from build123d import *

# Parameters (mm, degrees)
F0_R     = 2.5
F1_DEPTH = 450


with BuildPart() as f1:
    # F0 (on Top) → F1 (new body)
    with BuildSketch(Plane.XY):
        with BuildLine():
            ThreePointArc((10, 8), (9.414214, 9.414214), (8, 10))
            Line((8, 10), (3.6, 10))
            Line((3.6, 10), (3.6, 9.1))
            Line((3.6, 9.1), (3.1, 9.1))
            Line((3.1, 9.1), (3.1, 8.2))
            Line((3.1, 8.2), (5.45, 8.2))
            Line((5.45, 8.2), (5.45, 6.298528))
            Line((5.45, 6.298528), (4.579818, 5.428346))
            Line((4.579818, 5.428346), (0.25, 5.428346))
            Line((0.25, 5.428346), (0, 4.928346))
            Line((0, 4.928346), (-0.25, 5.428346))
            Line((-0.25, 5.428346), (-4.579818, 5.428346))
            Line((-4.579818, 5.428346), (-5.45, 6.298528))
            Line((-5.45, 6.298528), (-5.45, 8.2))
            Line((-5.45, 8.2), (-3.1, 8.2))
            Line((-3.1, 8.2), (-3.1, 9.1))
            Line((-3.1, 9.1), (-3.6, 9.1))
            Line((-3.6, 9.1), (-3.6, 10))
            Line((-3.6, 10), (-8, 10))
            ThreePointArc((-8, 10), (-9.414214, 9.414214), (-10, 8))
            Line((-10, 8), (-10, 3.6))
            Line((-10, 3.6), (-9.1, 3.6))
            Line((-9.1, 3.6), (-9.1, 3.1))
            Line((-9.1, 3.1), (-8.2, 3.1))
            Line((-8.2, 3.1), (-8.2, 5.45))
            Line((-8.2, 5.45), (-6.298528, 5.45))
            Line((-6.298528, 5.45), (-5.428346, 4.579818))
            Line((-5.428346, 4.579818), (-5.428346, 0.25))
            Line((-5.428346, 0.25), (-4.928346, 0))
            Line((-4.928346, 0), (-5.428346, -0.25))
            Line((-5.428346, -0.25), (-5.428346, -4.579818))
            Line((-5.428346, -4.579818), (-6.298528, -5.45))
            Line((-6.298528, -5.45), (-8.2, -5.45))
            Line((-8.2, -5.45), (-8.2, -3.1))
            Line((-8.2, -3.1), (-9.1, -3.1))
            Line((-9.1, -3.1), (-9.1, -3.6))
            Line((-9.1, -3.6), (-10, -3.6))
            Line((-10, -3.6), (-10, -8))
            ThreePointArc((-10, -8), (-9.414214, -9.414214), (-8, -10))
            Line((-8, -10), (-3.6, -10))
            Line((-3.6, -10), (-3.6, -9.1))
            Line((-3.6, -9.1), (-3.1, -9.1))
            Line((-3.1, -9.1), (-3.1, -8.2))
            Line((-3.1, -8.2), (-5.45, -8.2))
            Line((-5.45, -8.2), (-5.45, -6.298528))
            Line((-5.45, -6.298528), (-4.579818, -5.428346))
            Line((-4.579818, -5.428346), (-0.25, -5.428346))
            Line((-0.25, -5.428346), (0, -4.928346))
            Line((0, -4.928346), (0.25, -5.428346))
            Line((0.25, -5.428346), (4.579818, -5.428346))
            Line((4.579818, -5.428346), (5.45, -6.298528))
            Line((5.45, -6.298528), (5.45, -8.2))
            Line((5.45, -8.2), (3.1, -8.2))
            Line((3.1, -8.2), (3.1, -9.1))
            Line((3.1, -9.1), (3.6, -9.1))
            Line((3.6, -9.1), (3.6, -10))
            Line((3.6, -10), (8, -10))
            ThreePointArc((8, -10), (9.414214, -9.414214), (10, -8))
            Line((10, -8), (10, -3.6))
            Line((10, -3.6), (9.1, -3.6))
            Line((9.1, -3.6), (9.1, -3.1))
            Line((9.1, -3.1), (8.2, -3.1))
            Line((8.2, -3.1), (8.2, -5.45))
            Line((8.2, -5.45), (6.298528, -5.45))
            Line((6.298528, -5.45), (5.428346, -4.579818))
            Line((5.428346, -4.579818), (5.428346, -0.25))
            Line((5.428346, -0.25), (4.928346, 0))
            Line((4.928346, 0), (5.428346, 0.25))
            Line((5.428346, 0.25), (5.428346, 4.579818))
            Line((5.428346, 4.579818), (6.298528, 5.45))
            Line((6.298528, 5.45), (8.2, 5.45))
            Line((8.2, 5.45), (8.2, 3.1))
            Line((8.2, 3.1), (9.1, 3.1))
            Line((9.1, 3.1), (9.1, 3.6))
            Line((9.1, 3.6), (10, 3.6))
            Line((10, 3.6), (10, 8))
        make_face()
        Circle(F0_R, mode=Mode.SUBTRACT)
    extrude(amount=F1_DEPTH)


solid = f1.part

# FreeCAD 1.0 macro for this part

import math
import FreeCAD as App
import Part
import Sketcher
Q = App.Units.Quantity

doc = App.newDocument("Part")
body = doc.addObject("PartDesign::Body", "Body")

sketch1 = body.newObject("Sketcher::SketchObject", "Sketch")
sketch1.AttachmentSupport = (doc.getObject("XY_Plane"), [""])
sketch1.MapMode = "FlatFace"
sketch1.addGeometry([
    Part.ArcOfCircle(Part.Circle(App.Vector(8, 8, 0), App.Vector(0, 0, 1), 2), math.radians(0), math.radians(90)),
    Part.LineSegment(App.Vector(8, 10, 0), App.Vector(3.6, 10, 0)),
    Part.LineSegment(App.Vector(3.6, 10, 0), App.Vector(3.6, 9.1, 0)),
    Part.LineSegment(App.Vector(3.6, 9.1, 0), App.Vector(3.1, 9.1, 0)),
    Part.LineSegment(App.Vector(3.1, 9.1, 0), App.Vector(3.1, 8.2, 0)),
    Part.LineSegment(App.Vector(3.1, 8.2, 0), App.Vector(5.5, 8.2, 0)),
    Part.LineSegment(App.Vector(5.5, 8.2, 0), App.Vector(5.5, 6.3, 0)),
    Part.LineSegment(App.Vector(5.5, 6.3, 0), App.Vector(4.6, 5.4, 0)),
    Part.LineSegment(App.Vector(4.6, 5.4, 0), App.Vector(0.2, 5.4, 0)),
    Part.LineSegment(App.Vector(0.2, 5.4, 0), App.Vector(0, 4.9, 0)),
    Part.LineSegment(App.Vector(0, 4.9, 0), App.Vector(-0.2, 5.4, 0)),
    Part.LineSegment(App.Vector(-0.2, 5.4, 0), App.Vector(-4.6, 5.4, 0)),
    Part.LineSegment(App.Vector(-4.6, 5.4, 0), App.Vector(-5.5, 6.3, 0)),
    Part.LineSegment(App.Vector(-5.5, 6.3, 0), App.Vector(-5.5, 8.2, 0)),
    Part.LineSegment(App.Vector(-5.5, 8.2, 0), App.Vector(-3.1, 8.2, 0)),
    Part.LineSegment(App.Vector(-3.1, 8.2, 0), App.Vector(-3.1, 9.1, 0)),
    Part.LineSegment(App.Vector(-3.1, 9.1, 0), App.Vector(-3.6, 9.1, 0)),
    Part.LineSegment(App.Vector(-3.6, 9.1, 0), App.Vector(-3.6, 10, 0)),
    Part.LineSegment(App.Vector(-3.6, 10, 0), App.Vector(-8, 10, 0)),
    Part.ArcOfCircle(Part.Circle(App.Vector(-8, 8, 0), App.Vector(0, 0, 1), 2), math.radians(90), math.radians(180)),
    Part.LineSegment(App.Vector(-10, 8, 0), App.Vector(-10, 3.6, 0)),
    Part.LineSegment(App.Vector(-10, 3.6, 0), App.Vector(-9.1, 3.6, 0)),
    Part.LineSegment(App.Vector(-9.1, 3.6, 0), App.Vector(-9.1, 3.1, 0)),
    Part.LineSegment(App.Vector(-9.1, 3.1, 0), App.Vector(-8.2, 3.1, 0)),
    Part.LineSegment(App.Vector(-8.2, 3.1, 0), App.Vector(-8.2, 5.5, 0)),
    Part.LineSegment(App.Vector(-8.2, 5.5, 0), App.Vector(-6.3, 5.5, 0)),
    Part.LineSegment(App.Vector(-6.3, 5.5, 0), App.Vector(-5.4, 4.6, 0)),
    Part.LineSegment(App.Vector(-5.4, 4.6, 0), App.Vector(-5.4, 0.2, 0)),
    Part.LineSegment(App.Vector(-5.4, 0.2, 0), App.Vector(-4.9, 0, 0)),
    Part.LineSegment(App.Vector(-4.9, 0, 0), App.Vector(-5.4, -0.2, 0)),
    Part.LineSegment(App.Vector(-5.4, -0.2, 0), App.Vector(-5.4, -4.6, 0)),
    Part.LineSegment(App.Vector(-5.4, -4.6, 0), App.Vector(-6.3, -5.5, 0)),
    Part.LineSegment(App.Vector(-6.3, -5.5, 0), App.Vector(-8.2, -5.5, 0)),
    Part.LineSegment(App.Vector(-8.2, -5.5, 0), App.Vector(-8.2, -3.1, 0)),
    Part.LineSegment(App.Vector(-8.2, -3.1, 0), App.Vector(-9.1, -3.1, 0)),
    Part.LineSegment(App.Vector(-9.1, -3.1, 0), App.Vector(-9.1, -3.6, 0)),
    Part.LineSegment(App.Vector(-9.1, -3.6, 0), App.Vector(-10, -3.6, 0)),
    Part.LineSegment(App.Vector(-10, -3.6, 0), App.Vector(-10, -8, 0)),
    Part.ArcOfCircle(Part.Circle(App.Vector(-8, -8, 0), App.Vector(0, 0, 1), 2), math.radians(180), math.radians(270)),
    Part.LineSegment(App.Vector(-8, -10, 0), App.Vector(-3.6, -10, 0)),
    Part.LineSegment(App.Vector(-3.6, -10, 0), App.Vector(-3.6, -9.1, 0)),
    Part.LineSegment(App.Vector(-3.6, -9.1, 0), App.Vector(-3.1, -9.1, 0)),
    Part.LineSegment(App.Vector(-3.1, -9.1, 0), App.Vector(-3.1, -8.2, 0)),
    Part.LineSegment(App.Vector(-3.1, -8.2, 0), App.Vector(-5.5, -8.2, 0)),
    Part.LineSegment(App.Vector(-5.5, -8.2, 0), App.Vector(-5.5, -6.3, 0)),
    Part.LineSegment(App.Vector(-5.5, -6.3, 0), App.Vector(-4.6, -5.4, 0)),
    Part.LineSegment(App.Vector(-4.6, -5.4, 0), App.Vector(-0.2, -5.4, 0)),
    Part.LineSegment(App.Vector(-0.2, -5.4, 0), App.Vector(0, -4.9, 0)),
    Part.LineSegment(App.Vector(0, -4.9, 0), App.Vector(0.2, -5.4, 0)),
    Part.LineSegment(App.Vector(0.2, -5.4, 0), App.Vector(4.6, -5.4, 0)),
    Part.LineSegment(App.Vector(4.6, -5.4, 0), App.Vector(5.5, -6.3, 0)),
    Part.LineSegment(App.Vector(5.5, -6.3, 0), App.Vector(5.5, -8.2, 0)),
    Part.LineSegment(App.Vector(5.5, -8.2, 0), App.Vector(3.1, -8.2, 0)),
    Part.LineSegment(App.Vector(3.1, -8.2, 0), App.Vector(3.1, -9.1, 0)),
    Part.LineSegment(App.Vector(3.1, -9.1, 0), App.Vector(3.6, -9.1, 0)),
    Part.LineSegment(App.Vector(3.6, -9.1, 0), App.Vector(3.6, -10, 0)),
    Part.LineSegment(App.Vector(3.6, -10, 0), App.Vector(8, -10, 0)),
    Part.ArcOfCircle(Part.Circle(App.Vector(8, -8, 0), App.Vector(0, 0, 1), 2), math.radians(-90), math.radians(0)),
    Part.LineSegment(App.Vector(10, -8, 0), App.Vector(10, -3.6, 0)),
    Part.LineSegment(App.Vector(10, -3.6, 0), App.Vector(9.1, -3.6, 0)),
    Part.LineSegment(App.Vector(9.1, -3.6, 0), App.Vector(9.1, -3.1, 0)),
    Part.LineSegment(App.Vector(9.1, -3.1, 0), App.Vector(8.2, -3.1, 0)),
    Part.LineSegment(App.Vector(8.2, -3.1, 0), App.Vector(8.2, -5.5, 0)),
    Part.LineSegment(App.Vector(8.2, -5.5, 0), App.Vector(6.3, -5.5, 0)),
    Part.LineSegment(App.Vector(6.3, -5.5, 0), App.Vector(5.4, -4.6, 0)),
    Part.LineSegment(App.Vector(5.4, -4.6, 0), App.Vector(5.4, -0.2, 0)),
    Part.LineSegment(App.Vector(5.4, -0.2, 0), App.Vector(4.9, 0, 0)),
    Part.LineSegment(App.Vector(4.9, 0, 0), App.Vector(5.4, 0.2, 0)),
    Part.LineSegment(App.Vector(5.4, 0.2, 0), App.Vector(5.4, 4.6, 0)),
    Part.LineSegment(App.Vector(5.4, 4.6, 0), App.Vector(6.3, 5.5, 0)),
    Part.LineSegment(App.Vector(6.3, 5.5, 0), App.Vector(8.2, 5.5, 0)),
    Part.LineSegment(App.Vector(8.2, 5.5, 0), App.Vector(8.2, 3.1, 0)),
    Part.LineSegment(App.Vector(8.2, 3.1, 0), App.Vector(9.1, 3.1, 0)),
    Part.LineSegment(App.Vector(9.1, 3.1, 0), App.Vector(9.1, 3.6, 0)),
    Part.LineSegment(App.Vector(9.1, 3.6, 0), App.Vector(10, 3.6, 0)),
    Part.LineSegment(App.Vector(10, 3.6, 0), App.Vector(10, 8, 0)),
    Part.Circle(App.Vector(0, 0, 0), App.Vector(0, 0, 1), 2.5),
], False)
sketch1.addConstraint([
    Sketcher.Constraint("Tangent", 0, 2, 1, 1),
    Sketcher.Constraint("Coincident", 1, 2, 2, 1),
    Sketcher.Constraint("Coincident", 2, 2, 3, 1),
    Sketcher.Constraint("Coincident", 3, 2, 4, 1),
    Sketcher.Constraint("Coincident", 4, 2, 5, 1),
    Sketcher.Constraint("Coincident", 5, 2, 6, 1),
    Sketcher.Constraint("Coincident", 6, 2, 7, 1),
    Sketcher.Constraint("Coincident", 7, 2, 8, 1),
    Sketcher.Constraint("Coincident", 8, 2, 9, 1),
    Sketcher.Constraint("Coincident", 9, 2, 10, 1),
    Sketcher.Constraint("Coincident", 10, 2, 11, 1),
    Sketcher.Constraint("Coincident", 11, 2, 12, 1),
    Sketcher.Constraint("Coincident", 12, 2, 13, 1),
    Sketcher.Constraint("Coincident", 13, 2, 14, 1),
    Sketcher.Constraint("Coincident", 14, 2, 15, 1),
    Sketcher.Constraint("Coincident", 15, 2, 16, 1),
    Sketcher.Constraint("Coincident", 16, 2, 17, 1),
    Sketcher.Constraint("Coincident", 17, 2, 18, 1),
    Sketcher.Constraint("Tangent", 18, 2, 19, 1),
    Sketcher.Constraint("Tangent", 19, 2, 20, 1),
    Sketcher.Constraint("Coincident", 20, 2, 21, 1),
    Sketcher.Constraint("Coincident", 21, 2, 22, 1),
    Sketcher.Constraint("Coincident", 22, 2, 23, 1),
    Sketcher.Constraint("Coincident", 23, 2, 24, 1),
    Sketcher.Constraint("Coincident", 24, 2, 25, 1),
    Sketcher.Constraint("Coincident", 25, 2, 26, 1),
    Sketcher.Constraint("Coincident", 26, 2, 27, 1),
    Sketcher.Constraint("Coincident", 27, 2, 28, 1),
    Sketcher.Constraint("Coincident", 28, 2, 29, 1),
    Sketcher.Constraint("Coincident", 29, 2, 30, 1),
    Sketcher.Constraint("Coincident", 30, 2, 31, 1),
    Sketcher.Constraint("Coincident", 31, 2, 32, 1),
    Sketcher.Constraint("Coincident", 32, 2, 33, 1),
    Sketcher.Constraint("Coincident", 33, 2, 34, 1),
    Sketcher.Constraint("Coincident", 34, 2, 35, 1),
    Sketcher.Constraint("Coincident", 35, 2, 36, 1),
    Sketcher.Constraint("Coincident", 36, 2, 37, 1),
    Sketcher.Constraint("Tangent", 37, 2, 38, 1),
    Sketcher.Constraint("Tangent", 38, 2, 39, 1),
    Sketcher.Constraint("Coincident", 39, 2, 40, 1),
    Sketcher.Constraint("Coincident", 40, 2, 41, 1),
    Sketcher.Constraint("Coincident", 41, 2, 42, 1),
    Sketcher.Constraint("Coincident", 42, 2, 43, 1),
    Sketcher.Constraint("Coincident", 43, 2, 44, 1),
    Sketcher.Constraint("Coincident", 44, 2, 45, 1),
    Sketcher.Constraint("Coincident", 45, 2, 46, 1),
    Sketcher.Constraint("Coincident", 46, 2, 47, 1),
    Sketcher.Constraint("Coincident", 47, 2, 48, 1),
    Sketcher.Constraint("Coincident", 48, 2, 49, 1),
    Sketcher.Constraint("Coincident", 49, 2, 50, 1),
    Sketcher.Constraint("Coincident", 50, 2, 51, 1),
    Sketcher.Constraint("Coincident", 51, 2, 52, 1),
    Sketcher.Constraint("Coincident", 52, 2, 53, 1),
    Sketcher.Constraint("Coincident", 53, 2, 54, 1),
    Sketcher.Constraint("Coincident", 54, 2, 55, 1),
    Sketcher.Constraint("Coincident", 55, 2, 56, 1),
    Sketcher.Constraint("Tangent", 56, 2, 57, 1),
    Sketcher.Constraint("Tangent", 57, 2, 58, 1),
    Sketcher.Constraint("Coincident", 58, 2, 59, 1),
    Sketcher.Constraint("Coincident", 59, 2, 60, 1),
    Sketcher.Constraint("Coincident", 60, 2, 61, 1),
    Sketcher.Constraint("Coincident", 61, 2, 62, 1),
    Sketcher.Constraint("Coincident", 62, 2, 63, 1),
    Sketcher.Constraint("Coincident", 63, 2, 64, 1),
    Sketcher.Constraint("Coincident", 64, 2, 65, 1),
    Sketcher.Constraint("Coincident", 65, 2, 66, 1),
    Sketcher.Constraint("Coincident", 66, 2, 67, 1),
    Sketcher.Constraint("Coincident", 67, 2, 68, 1),
    Sketcher.Constraint("Coincident", 68, 2, 69, 1),
    Sketcher.Constraint("Coincident", 69, 2, 70, 1),
    Sketcher.Constraint("Coincident", 70, 2, 71, 1),
    Sketcher.Constraint("Coincident", 71, 2, 72, 1),
    Sketcher.Constraint("Coincident", 72, 2, 73, 1),
    Sketcher.Constraint("Coincident", 73, 2, 74, 1),
    Sketcher.Constraint("Coincident", 74, 2, 75, 1),
    Sketcher.Constraint("Tangent", 75, 2, 0, 1),
    Sketcher.Constraint("Horizontal", 1),
    Sketcher.Constraint("Vertical", 2),
    Sketcher.Constraint("Horizontal", 3),
    Sketcher.Constraint("Vertical", 4),
    Sketcher.Constraint("Horizontal", 5),
    Sketcher.Constraint("Vertical", 6),
    Sketcher.Constraint("Horizontal", 8),
    Sketcher.Constraint("Horizontal", 11),
    Sketcher.Constraint("Vertical", 13),
    Sketcher.Constraint("Horizontal", 14),
    Sketcher.Constraint("Vertical", 15),
    Sketcher.Constraint("Horizontal", 16),
    Sketcher.Constraint("Vertical", 17),
    Sketcher.Constraint("Horizontal", 18),
    Sketcher.Constraint("Vertical", 20),
    Sketcher.Constraint("Horizontal", 21),
    Sketcher.Constraint("Vertical", 22),
    Sketcher.Constraint("Horizontal", 23),
    Sketcher.Constraint("Vertical", 24),
    Sketcher.Constraint("Horizontal", 25),
    Sketcher.Constraint("Vertical", 27),
    Sketcher.Constraint("Vertical", 30),
    Sketcher.Constraint("Horizontal", 32),
    Sketcher.Constraint("Vertical", 33),
    Sketcher.Constraint("Horizontal", 34),
    Sketcher.Constraint("Vertical", 35),
    Sketcher.Constraint("Horizontal", 36),
    Sketcher.Constraint("Vertical", 37),
    Sketcher.Constraint("Horizontal", 39),
    Sketcher.Constraint("Vertical", 40),
    Sketcher.Constraint("Horizontal", 41),
    Sketcher.Constraint("Vertical", 42),
    Sketcher.Constraint("Horizontal", 43),
    Sketcher.Constraint("Vertical", 44),
    Sketcher.Constraint("Horizontal", 46),
    Sketcher.Constraint("Horizontal", 49),
    Sketcher.Constraint("Vertical", 51),
    Sketcher.Constraint("Horizontal", 52),
    Sketcher.Constraint("Vertical", 53),
    Sketcher.Constraint("Horizontal", 54),
    Sketcher.Constraint("Vertical", 55),
    Sketcher.Constraint("Horizontal", 56),
    Sketcher.Constraint("Vertical", 58),
    Sketcher.Constraint("Horizontal", 59),
    Sketcher.Constraint("Vertical", 60),
    Sketcher.Constraint("Horizontal", 61),
    Sketcher.Constraint("Vertical", 62),
    Sketcher.Constraint("Horizontal", 63),
    Sketcher.Constraint("Vertical", 65),
    Sketcher.Constraint("Vertical", 68),
    Sketcher.Constraint("Horizontal", 70),
    Sketcher.Constraint("Vertical", 71),
    Sketcher.Constraint("Horizontal", 72),
    Sketcher.Constraint("Vertical", 73),
    Sketcher.Constraint("Horizontal", 74),
    Sketcher.Constraint("Vertical", 75),
    Sketcher.Constraint("Coincident", 76, 3, -1, 1),
    Sketcher.Constraint("Equal", 0, 19),
    Sketcher.Constraint("Equal", 19, 38),
    Sketcher.Constraint("Equal", 38, 57),
    Sketcher.Constraint("Symmetric", 0, 3, 38, 3, -1, 1),
    Sketcher.Constraint("Symmetric", 19, 3, 57, 3, -1, 1),
    Sketcher.Constraint("Symmetric", 2, 2, 40, 2, -1, 1),
    Sketcher.Constraint("Symmetric", 4, 2, 42, 2, -1, 1),
    Sketcher.Constraint("Symmetric", 6, 2, 44, 2, -1, 1),
    Sketcher.Constraint("Symmetric", 7, 2, 45, 2, -1, 1),
    Sketcher.Constraint("Symmetric", 9, 2, 47, 2, -1, 1),
    Sketcher.Constraint("Symmetric", 10, 2, 48, 2, -1, 1),
    Sketcher.Constraint("Symmetric", 12, 2, 50, 2, -1, 1),
    Sketcher.Constraint("Symmetric", 14, 2, 52, 2, -1, 1),
    Sketcher.Constraint("Symmetric", 16, 2, 54, 2, -1, 1),
    Sketcher.Constraint("Symmetric", 21, 2, 59, 2, -1, 1),
    Sketcher.Constraint("Symmetric", 23, 2, 61, 2, -1, 1),
    Sketcher.Constraint("Symmetric", 25, 2, 63, 2, -1, 1),
    Sketcher.Constraint("Symmetric", 26, 2, 64, 2, -1, 1),
    Sketcher.Constraint("Symmetric", 28, 2, 66, 2, -1, 1),
    Sketcher.Constraint("Symmetric", 29, 2, 67, 2, -1, 1),
    Sketcher.Constraint("Symmetric", 31, 2, 69, 2, -1, 1),
    Sketcher.Constraint("Symmetric", 33, 2, 71, 2, -1, 1),
    Sketcher.Constraint("Symmetric", 35, 2, 73, 2, -1, 1),
    Sketcher.Constraint("Symmetric", 0, 3, 19, 3, -2),
    Sketcher.Constraint("Symmetric", 8, 2, 10, 2, -2),
    Sketcher.Constraint("Symmetric", 6, 2, 12, 2, -2),
    Sketcher.Constraint("Symmetric", 4, 2, 14, 2, -2),
    Sketcher.Constraint("Symmetric", 2, 2, 16, 2, -2),
    Sketcher.Constraint("Symmetric", 35, 2, 59, 2, -2),
    Sketcher.Constraint("Symmetric", 33, 2, 61, 2, -2),
    Sketcher.Constraint("Symmetric", 31, 2, 63, 2, -2),
    Sketcher.Constraint("Symmetric", 30, 2, 64, 2, -2),
    Sketcher.Constraint("PointOnObject", 9, 2, -2),
    Sketcher.Constraint("PointOnObject", 28, 2, -1),
    Sketcher.Constraint("Perpendicular", 7, 12),
    Sketcher.Constraint("Parallel", 12, 26),
    Sketcher.Constraint("Perpendicular", 9, 28),
    Sketcher.Constraint("Perpendicular", 10, 29),
    Sketcher.Constraint("Perpendicular", 26, 31),
    Sketcher.Constraint("Perpendicular", 28, 47),
    Sketcher.Constraint("Perpendicular", 45, 50),
    Sketcher.Constraint("Perpendicular", 47, 66),
    Sketcher.Constraint("Perpendicular", 64, 69),
    Sketcher.Constraint("Equal", 21, 23),
    Sketcher.Constraint("Equal", 74, 2),
    Sketcher.Constraint("Equal", 2, 4),
    Sketcher.Constraint("Equal", 70, 6),
    Sketcher.Constraint("Equal", 56, 20),
    Sketcher.Constraint("Equal", 54, 22),
    Sketcher.Constraint("Equal", 52, 24),
    Sketcher.Constraint("Equal", 49, 27),
    Sketcher.Constraint("Equal", 12, 26),
    Sketcher.Constraint("Equal", 10, 28),
    Sketcher.Constraint("Diameter", 76, Q("5 mm")),
    Sketcher.Constraint("Radius", 0, Q("1.999999 mm")),
    Sketcher.Constraint("DistanceX", 1, 2, 1, 1, Q("4.4 mm")),
    Sketcher.Constraint("DistanceX", 3, 2, 3, 1, Q("0.5 mm")),
    Sketcher.Constraint("DistanceX", 21, 1, 21, 2, Q("0.9 mm")),
    Sketcher.Constraint("DistanceX", -1, 1, 0, 3, Q("8.000001 mm")),
    Sketcher.Constraint("DistanceX", 5, 1, 5, 2, Q("2.35 mm")),
    Sketcher.Constraint("DistanceX", -1, 1, 8, 2, Q("0.25 mm")),
    Sketcher.Constraint("DistanceX", 8, 2, 8, 1, Q("4.329818 mm")),
    Sketcher.Constraint("DistanceX", 25, 1, 25, 2, Q("1.901472 mm")),
    Sketcher.Constraint("Distance", 9, Q("0.559017 mm")),
])
pad1 = body.newObject("PartDesign::Pad", "Pad")
pad1.Profile = sketch1
pad1.Length = 450

doc.recompute()
